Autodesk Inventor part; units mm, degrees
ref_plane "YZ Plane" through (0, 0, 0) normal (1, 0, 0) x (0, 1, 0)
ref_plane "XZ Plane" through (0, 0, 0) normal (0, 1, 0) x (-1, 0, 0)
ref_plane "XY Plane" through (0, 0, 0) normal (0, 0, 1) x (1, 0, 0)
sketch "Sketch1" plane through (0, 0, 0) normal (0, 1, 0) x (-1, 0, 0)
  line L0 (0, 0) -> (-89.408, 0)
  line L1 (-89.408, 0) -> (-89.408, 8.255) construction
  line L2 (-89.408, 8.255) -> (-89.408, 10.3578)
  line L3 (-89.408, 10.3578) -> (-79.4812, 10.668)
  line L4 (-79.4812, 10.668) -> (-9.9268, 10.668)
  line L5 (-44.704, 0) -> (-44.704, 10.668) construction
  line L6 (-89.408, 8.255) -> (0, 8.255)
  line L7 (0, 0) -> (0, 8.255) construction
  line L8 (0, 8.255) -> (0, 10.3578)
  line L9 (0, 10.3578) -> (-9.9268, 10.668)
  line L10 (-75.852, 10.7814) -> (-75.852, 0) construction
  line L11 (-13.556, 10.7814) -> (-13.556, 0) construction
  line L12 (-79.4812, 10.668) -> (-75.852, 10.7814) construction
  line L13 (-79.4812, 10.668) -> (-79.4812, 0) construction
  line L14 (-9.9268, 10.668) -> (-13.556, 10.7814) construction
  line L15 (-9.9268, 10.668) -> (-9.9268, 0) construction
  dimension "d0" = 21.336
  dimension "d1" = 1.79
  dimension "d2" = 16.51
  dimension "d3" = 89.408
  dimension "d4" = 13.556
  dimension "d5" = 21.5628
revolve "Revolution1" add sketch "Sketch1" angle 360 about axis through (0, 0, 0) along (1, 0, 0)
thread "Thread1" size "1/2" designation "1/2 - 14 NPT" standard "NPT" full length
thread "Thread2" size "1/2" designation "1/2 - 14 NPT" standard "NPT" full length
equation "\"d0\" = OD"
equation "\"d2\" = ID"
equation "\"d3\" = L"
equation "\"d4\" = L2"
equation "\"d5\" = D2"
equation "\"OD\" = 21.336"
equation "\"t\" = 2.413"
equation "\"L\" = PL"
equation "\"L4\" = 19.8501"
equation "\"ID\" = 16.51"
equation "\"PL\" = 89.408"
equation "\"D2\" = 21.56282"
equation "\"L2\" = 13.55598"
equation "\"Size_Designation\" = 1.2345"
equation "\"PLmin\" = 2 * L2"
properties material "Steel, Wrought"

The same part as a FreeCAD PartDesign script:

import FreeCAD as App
import Part
import Sketcher
Q = App.Units.Quantity


def add_polygon(sketch, points):
    """Adds a closed chain of lines whose ends are joined by coincident constraints."""
    first, n = sketch.GeometryCount, len(points)
    for a, b in zip(points, points[1:] + points[:1]):
        sketch.addGeometry(Part.LineSegment(App.Vector(*a, 0), App.Vector(*b, 0)), False)
    for i in range(n):
        sketch.addConstraint(Sketcher.Constraint("Coincident", first + i, 2, first + (i + 1) % n, 1))

doc = App.newDocument("Part")
body = doc.addObject("PartDesign::Body", "Body")

# Sketch on XZ plane
sketch1 = body.newObject("Sketcher::SketchObject", "Sketch")
sketch1.AttachmentSupport = (doc.getObject("XZ_Plane"), [""])
sketch1.MapMode = "FlatFace"
add_polygon(sketch1, [(89.4, 10.4), (89.4, 8.3), (0, 8.3), (0, 10.4), (9.9, 10.7), (79.5, 10.7)])  # lines 0-5
sketch1.addConstraint(Sketcher.Constraint("Vertical", 0))
sketch1.addConstraint(Sketcher.Constraint("Horizontal", 1))
sketch1.addConstraint(Sketcher.Constraint("Vertical", 2))
sketch1.addConstraint(Sketcher.Constraint("Horizontal", 4))
sketch1.addConstraint(Sketcher.Constraint("PointOnObject", 1, 2, -2))
sketch1.addConstraint(Sketcher.Constraint("Horizontal", 2, 2, 5, 2))
sketch1.addConstraint(Sketcher.Constraint("Equal", 3, 5))
sketch1.addConstraint(Sketcher.Constraint("DistanceX", 1, 2, 1, 1, Q("3.52 in")))
sketch1.addConstraint(Sketcher.Constraint("Angle", 3, Q("1.7898 deg")))
sketch1.addConstraint(Sketcher.Constraint("DistanceY", -1, 1, 3, 2, Q("0.42 in")))
sketch1.addConstraint(Sketcher.Constraint("Distance", 3, Q("0.391 in")))
sketch1.addConstraint(Sketcher.Constraint("DistanceY", -1, 1, 0, 2, Q("0.325 in")))
revolution = body.newObject("PartDesign::Revolution", "Revolution")
revolution.Profile = sketch1
revolution.ReferenceAxis = (sketch1, ["H_Axis"])
revolution.Angle = 360

doc.recompute()
